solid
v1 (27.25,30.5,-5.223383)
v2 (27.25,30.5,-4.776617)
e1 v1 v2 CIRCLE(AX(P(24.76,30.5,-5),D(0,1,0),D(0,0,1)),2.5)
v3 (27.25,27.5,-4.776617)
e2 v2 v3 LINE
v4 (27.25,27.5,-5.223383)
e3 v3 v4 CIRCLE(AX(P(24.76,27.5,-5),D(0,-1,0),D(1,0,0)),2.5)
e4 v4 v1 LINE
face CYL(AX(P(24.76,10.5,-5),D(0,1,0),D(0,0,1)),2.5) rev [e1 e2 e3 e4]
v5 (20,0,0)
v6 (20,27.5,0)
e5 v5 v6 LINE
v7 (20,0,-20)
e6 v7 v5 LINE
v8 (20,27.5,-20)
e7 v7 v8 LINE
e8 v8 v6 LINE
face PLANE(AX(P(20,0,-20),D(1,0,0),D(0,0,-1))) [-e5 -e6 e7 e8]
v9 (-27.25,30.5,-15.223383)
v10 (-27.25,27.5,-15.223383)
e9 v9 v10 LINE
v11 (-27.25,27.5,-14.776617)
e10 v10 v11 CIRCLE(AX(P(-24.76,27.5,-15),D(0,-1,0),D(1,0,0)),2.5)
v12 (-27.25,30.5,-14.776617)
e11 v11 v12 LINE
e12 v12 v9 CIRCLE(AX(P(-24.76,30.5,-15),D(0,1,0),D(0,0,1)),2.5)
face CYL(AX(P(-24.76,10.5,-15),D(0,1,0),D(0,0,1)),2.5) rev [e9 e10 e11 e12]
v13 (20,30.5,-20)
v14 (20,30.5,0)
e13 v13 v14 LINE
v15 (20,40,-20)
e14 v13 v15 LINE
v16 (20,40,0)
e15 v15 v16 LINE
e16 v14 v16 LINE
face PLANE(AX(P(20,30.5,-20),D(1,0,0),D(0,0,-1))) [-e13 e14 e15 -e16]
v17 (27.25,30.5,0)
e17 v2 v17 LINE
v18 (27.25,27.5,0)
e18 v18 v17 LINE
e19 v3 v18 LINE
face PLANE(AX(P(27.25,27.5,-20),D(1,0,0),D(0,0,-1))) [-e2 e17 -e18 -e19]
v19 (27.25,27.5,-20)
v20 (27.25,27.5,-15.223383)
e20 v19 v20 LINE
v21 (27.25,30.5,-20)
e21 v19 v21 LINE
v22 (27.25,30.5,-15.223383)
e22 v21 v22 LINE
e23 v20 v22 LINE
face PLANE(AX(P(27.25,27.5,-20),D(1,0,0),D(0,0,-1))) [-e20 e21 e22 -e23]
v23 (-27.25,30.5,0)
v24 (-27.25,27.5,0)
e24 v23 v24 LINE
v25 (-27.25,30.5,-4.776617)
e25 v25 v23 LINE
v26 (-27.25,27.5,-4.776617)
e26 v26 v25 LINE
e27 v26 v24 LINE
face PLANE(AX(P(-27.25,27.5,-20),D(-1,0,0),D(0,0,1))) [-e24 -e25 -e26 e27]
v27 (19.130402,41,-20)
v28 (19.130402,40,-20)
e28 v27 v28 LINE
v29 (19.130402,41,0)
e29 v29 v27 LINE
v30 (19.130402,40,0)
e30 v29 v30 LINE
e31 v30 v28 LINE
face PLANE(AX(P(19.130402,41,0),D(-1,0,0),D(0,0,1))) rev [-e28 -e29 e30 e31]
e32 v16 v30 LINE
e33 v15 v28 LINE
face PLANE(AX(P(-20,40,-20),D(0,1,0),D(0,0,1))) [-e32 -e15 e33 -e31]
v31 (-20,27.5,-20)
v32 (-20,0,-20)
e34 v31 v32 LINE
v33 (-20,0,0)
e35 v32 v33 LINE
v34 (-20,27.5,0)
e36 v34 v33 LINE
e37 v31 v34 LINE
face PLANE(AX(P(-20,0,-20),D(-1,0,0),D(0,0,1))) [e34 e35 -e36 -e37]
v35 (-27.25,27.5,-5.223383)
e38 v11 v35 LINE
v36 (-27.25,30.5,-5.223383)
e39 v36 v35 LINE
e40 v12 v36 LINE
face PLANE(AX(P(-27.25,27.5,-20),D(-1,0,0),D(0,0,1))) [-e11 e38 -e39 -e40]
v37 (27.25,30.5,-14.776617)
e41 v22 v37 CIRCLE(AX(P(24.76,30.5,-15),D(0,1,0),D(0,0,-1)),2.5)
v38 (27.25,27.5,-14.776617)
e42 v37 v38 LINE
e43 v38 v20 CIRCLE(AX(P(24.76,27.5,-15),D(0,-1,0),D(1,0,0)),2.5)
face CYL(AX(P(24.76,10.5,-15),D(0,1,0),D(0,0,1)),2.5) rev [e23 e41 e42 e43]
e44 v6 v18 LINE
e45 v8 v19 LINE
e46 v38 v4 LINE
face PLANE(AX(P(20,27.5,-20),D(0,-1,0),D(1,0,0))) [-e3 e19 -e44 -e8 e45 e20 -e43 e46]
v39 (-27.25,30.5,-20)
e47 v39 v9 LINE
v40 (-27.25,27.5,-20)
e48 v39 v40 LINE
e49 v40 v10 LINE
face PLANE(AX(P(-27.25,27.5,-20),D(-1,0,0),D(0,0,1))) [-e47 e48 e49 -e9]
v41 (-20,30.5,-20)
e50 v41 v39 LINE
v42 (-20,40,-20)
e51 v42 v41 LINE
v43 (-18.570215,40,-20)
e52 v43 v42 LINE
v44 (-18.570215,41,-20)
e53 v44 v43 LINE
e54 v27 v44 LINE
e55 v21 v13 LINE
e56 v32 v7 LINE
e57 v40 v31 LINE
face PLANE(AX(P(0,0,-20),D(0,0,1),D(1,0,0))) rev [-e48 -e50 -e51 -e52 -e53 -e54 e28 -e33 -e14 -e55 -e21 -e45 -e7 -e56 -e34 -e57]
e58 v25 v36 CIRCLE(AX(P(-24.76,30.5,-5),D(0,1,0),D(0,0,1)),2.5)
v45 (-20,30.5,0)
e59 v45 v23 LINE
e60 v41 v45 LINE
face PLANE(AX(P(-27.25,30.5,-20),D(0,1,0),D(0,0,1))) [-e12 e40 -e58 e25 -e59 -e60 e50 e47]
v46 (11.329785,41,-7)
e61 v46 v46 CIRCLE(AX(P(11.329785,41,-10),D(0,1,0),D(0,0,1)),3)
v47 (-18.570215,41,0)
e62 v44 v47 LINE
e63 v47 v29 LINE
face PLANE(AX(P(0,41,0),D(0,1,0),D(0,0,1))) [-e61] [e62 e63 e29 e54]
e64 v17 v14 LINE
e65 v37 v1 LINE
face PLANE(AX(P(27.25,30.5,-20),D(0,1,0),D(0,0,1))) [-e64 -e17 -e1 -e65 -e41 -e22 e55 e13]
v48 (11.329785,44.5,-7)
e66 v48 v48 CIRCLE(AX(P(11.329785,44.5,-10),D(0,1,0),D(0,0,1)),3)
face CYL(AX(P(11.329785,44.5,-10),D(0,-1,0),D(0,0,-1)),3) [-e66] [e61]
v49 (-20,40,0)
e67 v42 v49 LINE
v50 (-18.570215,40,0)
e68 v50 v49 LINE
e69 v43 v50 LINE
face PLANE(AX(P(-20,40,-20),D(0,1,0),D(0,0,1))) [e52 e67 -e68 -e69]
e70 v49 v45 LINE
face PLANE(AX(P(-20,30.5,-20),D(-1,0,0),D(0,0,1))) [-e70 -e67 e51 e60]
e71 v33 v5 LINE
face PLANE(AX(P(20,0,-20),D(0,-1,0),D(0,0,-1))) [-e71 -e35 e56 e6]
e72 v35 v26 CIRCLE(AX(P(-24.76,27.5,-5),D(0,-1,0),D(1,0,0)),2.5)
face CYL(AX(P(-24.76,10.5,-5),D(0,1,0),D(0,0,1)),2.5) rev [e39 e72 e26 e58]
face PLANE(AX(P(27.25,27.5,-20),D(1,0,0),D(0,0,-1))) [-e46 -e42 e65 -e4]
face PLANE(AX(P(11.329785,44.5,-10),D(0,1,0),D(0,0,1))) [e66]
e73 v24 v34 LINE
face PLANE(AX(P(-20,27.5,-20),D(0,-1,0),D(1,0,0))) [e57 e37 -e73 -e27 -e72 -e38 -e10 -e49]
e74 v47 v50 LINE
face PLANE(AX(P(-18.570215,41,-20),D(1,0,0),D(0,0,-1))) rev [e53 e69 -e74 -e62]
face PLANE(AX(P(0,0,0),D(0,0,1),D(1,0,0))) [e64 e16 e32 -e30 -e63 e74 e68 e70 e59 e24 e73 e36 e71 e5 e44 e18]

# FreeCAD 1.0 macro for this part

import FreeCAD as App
import Part
import Sketcher

V = App.Vector
Q = App.Units.Quantity

doc = App.newDocument("Part")
params = doc.addObject("Spreadsheet::Sheet", "Params")
for row, (alias, value) in enumerate([
    ("sketch1_width", "40 mm"),
    ("sketch1_height", "3 mm"),
    ("sketch1_height2", "27.5 mm"),
    ("sketch1_height3", "9.5 mm"),
    ("sketch1_width2", "7.25 mm"),
    ("pad1_length", "20 mm"),
    ("sketch2_diameter", "5 mm"),
    ("pocket1_length", "20 mm"),
    ("sketch3_height", "20 mm"),
    ("pad2_length", "1 mm"),
    ("sketch4_diameter", "6 mm"),
    ("pad3_length", "3.5 mm"),
], start=1):
    params.set(f"A{row}", alias)
    params.set(f"B{row}", "=" + value)
    params.setAlias(f"B{row}", alias)

body = doc.addObject("PartDesign::Body", "Body")

# Sketch on XY plane
sketch1 = body.newObject("Sketcher::SketchObject", "Sketch")
sketch1.AttachmentSupport = (doc.getObject("XY_Plane"), [""])
sketch1.MapMode = "FlatFace"
sketch1.addGeometry(Part.LineSegment(V(-20, 0, 0), V(20, 0, 0)), False)
sketch1.addGeometry(Part.LineSegment(V(20, 0, 0), V(20, 27.5, 0)), False)
sketch1.addGeometry(Part.LineSegment(V(20, 27.5, 0), V(27.2, 27.5, 0)), False)
sketch1.addGeometry(Part.LineSegment(V(27.2, 27.5, 0), V(27.2, 30.5, 0)), False)
sketch1.addGeometry(Part.LineSegment(V(27.2, 30.5, 0), V(20, 30.5, 0)), False)
sketch1.addGeometry(Part.LineSegment(V(20, 30.5, 0), V(20, 40, 0)), False)
sketch1.addGeometry(Part.LineSegment(V(20, 40, 0), V(-20, 40, 0)), False)
sketch1.addGeometry(Part.LineSegment(V(-20, 40, 0), V(-20, 30.5, 0)), False)
sketch1.addGeometry(Part.LineSegment(V(-20, 30.5, 0), V(-27.2, 30.5, 0)), False)
sketch1.addGeometry(Part.LineSegment(V(-27.2, 30.5, 0), V(-27.2, 27.5, 0)), False)
sketch1.addGeometry(Part.LineSegment(V(-27.2, 27.5, 0), V(-20, 27.5, 0)), False)
sketch1.addGeometry(Part.LineSegment(V(-20, 27.5, 0), V(-20, 0, 0)), False)
sketch1.addConstraint(Sketcher.Constraint("Coincident", 0, 2, 1, 1))
sketch1.addConstraint(Sketcher.Constraint("Coincident", 1, 2, 2, 1))
sketch1.addConstraint(Sketcher.Constraint("Coincident", 2, 2, 3, 1))
sketch1.addConstraint(Sketcher.Constraint("Coincident", 3, 2, 4, 1))
sketch1.addConstraint(Sketcher.Constraint("Coincident", 4, 2, 5, 1))
sketch1.addConstraint(Sketcher.Constraint("Coincident", 5, 2, 6, 1))
sketch1.addConstraint(Sketcher.Constraint("Coincident", 6, 2, 7, 1))
sketch1.addConstraint(Sketcher.Constraint("Coincident", 7, 2, 8, 1))
sketch1.addConstraint(Sketcher.Constraint("Coincident", 8, 2, 9, 1))
sketch1.addConstraint(Sketcher.Constraint("Coincident", 9, 2, 10, 1))
sketch1.addConstraint(Sketcher.Constraint("Coincident", 10, 2, 11, 1))
sketch1.addConstraint(Sketcher.Constraint("Coincident", 11, 2, 0, 1))
sketch1.addConstraint(Sketcher.Constraint("Horizontal", 0))
sketch1.addConstraint(Sketcher.Constraint("Vertical", 1))
sketch1.addConstraint(Sketcher.Constraint("Horizontal", 2))
sketch1.addConstraint(Sketcher.Constraint("Vertical", 3))
sketch1.addConstraint(Sketcher.Constraint("Horizontal", 4))
sketch1.addConstraint(Sketcher.Constraint("Vertical", 5))
sketch1.addConstraint(Sketcher.Constraint("Horizontal", 6))
sketch1.addConstraint(Sketcher.Constraint("Vertical", 7))
sketch1.addConstraint(Sketcher.Constraint("Horizontal", 8))
sketch1.addConstraint(Sketcher.Constraint("Vertical", 9))
sketch1.addConstraint(Sketcher.Constraint("Horizontal", 10))
sketch1.addConstraint(Sketcher.Constraint("Vertical", 11))
sketch1.addConstraint(Sketcher.Constraint("Symmetric", 0, 2, 11, 2, -1, 1))
sketch1.addConstraint(Sketcher.Constraint("Symmetric", 4, 2, 7, 2, -2))
sketch1.addConstraint(Sketcher.Constraint("Symmetric", 2, 2, 9, 2, -2))
sketch1.addConstraint(Sketcher.Constraint("Vertical", 1, 2, 4, 2))
sketch1.addConstraint(Sketcher.Constraint("DistanceX", 0, 1, 0, 2, Q("40 mm")))
sketch1.addConstraint(Sketcher.Constraint("DistanceY", 3, 1, 3, 2, Q("3 mm")))
sketch1.addConstraint(Sketcher.Constraint("DistanceY", 1, 1, 1, 2, Q("27.5 mm")))
sketch1.addConstraint(Sketcher.Constraint("DistanceY", 5, 1, 5, 2, Q("9.5 mm")))
sketch1.addConstraint(Sketcher.Constraint("DistanceX", 2, 1, 2, 2, Q("7.25 mm")))
sketch1.setExpression("Constraints[28]", "Params.sketch1_width")
sketch1.setExpression("Constraints[29]", "Params.sketch1_height")
sketch1.setExpression("Constraints[30]", "Params.sketch1_height2")
sketch1.setExpression("Constraints[31]", "Params.sketch1_height3")
sketch1.setExpression("Constraints[32]", "Params.sketch1_width2")
pad1 = body.newObject("PartDesign::Pad", "Pad")
pad1.Profile = sketch1
pad1.setExpression("Length", "Params.pad1_length")
pad1.Reversed = True

# Sketch on XZ plane
sketch2 = body.newObject("Sketcher::SketchObject", "Sketch001")
sketch2.AttachmentSupport = (doc.getObject("XZ_Plane"), [""])
sketch2.MapMode = "FlatFace"
sketch2.AttachmentOffset = App.Placement(V(0, 0, -30.5), App.Rotation())
sketch2.addGeometry(Part.Circle(V(-24.8, -15, 0), V(0, 0, 1), 2.5), False)
sketch2.addGeometry(Part.Circle(V(-24.8, -5, 0), V(0, 0, 1), 2.5), False)
sketch2.addGeometry(Part.Circle(V(24.8, -5, 0), V(0, 0, 1), 2.5), False)
sketch2.addGeometry(Part.Circle(V(24.8, -15, 0), V(0, 0, 1), 2.5), False)
sketch2.addConstraint(Sketcher.Constraint("Equal", 0, 1))
sketch2.addConstraint(Sketcher.Constraint("Equal", 1, 2))
sketch2.addConstraint(Sketcher.Constraint("Equal", 2, 3))
sketch2.addConstraint(Sketcher.Constraint("Symmetric", 1, 3, 2, 3, -2))
sketch2.addConstraint(Sketcher.Constraint("Symmetric", 0, 3, 3, 3, -2))
sketch2.addConstraint(Sketcher.Constraint("Vertical", 0, 3, 1, 3))
sketch2.addConstraint(Sketcher.Constraint("Diameter", 0, Q("5 mm")))
sketch2.addConstraint(Sketcher.Constraint("DistanceY", 0, 3, -1, 1, Q("15 mm")))
sketch2.addConstraint(Sketcher.Constraint("DistanceY", 1, 3, -1, 1, Q("5 mm")))
sketch2.addConstraint(Sketcher.Constraint("DistanceX", 0, 3, -1, 1, Q("24.76 mm")))
sketch2.setExpression("Constraints[6]", "Params.sketch2_diameter")
pocket1 = body.newObject("PartDesign::Pocket", "Pocket")
pocket1.Profile = sketch2
pocket1.setExpression("Length", "Params.pocket1_length")
pocket1.Reversed = True

# Sketch on XZ plane
sketch3 = body.newObject("Sketcher::SketchObject", "Sketch002")
sketch3.AttachmentSupport = (doc.getObject("XZ_Plane"), [""])
sketch3.MapMode = "FlatFace"
sketch3.AttachmentOffset = App.Placement(V(0, 0, -40), App.Rotation())
sketch3.addGeometry(Part.LineSegment(V(-19, -20, 0), V(-19, 0, 0)), False)
sketch3.addGeometry(Part.LineSegment(V(-19, 0, 0), V(19, 0, 0)), False)
sketch3.addGeometry(Part.LineSegment(V(19, 0, 0), V(19, -20, 0)), False)
sketch3.addGeometry(Part.LineSegment(V(19, -20, 0), V(-19, -20, 0)), False)
sketch3.addConstraint(Sketcher.Constraint("Coincident", 0, 2, 1, 1))
sketch3.addConstraint(Sketcher.Constraint("Coincident", 1, 2, 2, 1))
sketch3.addConstraint(Sketcher.Constraint("Coincident", 2, 2, 3, 1))
sketch3.addConstraint(Sketcher.Constraint("Coincident", 3, 2, 0, 1))
sketch3.addConstraint(Sketcher.Constraint("Vertical", 0))
sketch3.addConstraint(Sketcher.Constraint("Horizontal", 1))
sketch3.addConstraint(Sketcher.Constraint("Vertical", 2))
sketch3.addConstraint(Sketcher.Constraint("Horizontal", 3))
sketch3.addConstraint(Sketcher.Constraint("PointOnObject", 0, 2, -1))
sketch3.addConstraint(Sketcher.Constraint("DistanceY", 0, 1, 0, 2, Q("20 mm")))
sketch3.addConstraint(Sketcher.Constraint("DistanceX", 1, 1, 1, 2, Q("37.700617 mm")))
sketch3.addConstraint(Sketcher.Constraint("DistanceX", 0, 2, -1, 1, Q("18.570215 mm")))
sketch3.setExpression("Constraints[9]", "Params.sketch3_height")
pad2 = body.newObject("PartDesign::Pad", "Pad001")
pad2.Profile = sketch3
pad2.setExpression("Length", "Params.pad2_length")
pad2.Reversed = True

# Sketch on XZ plane
sketch4 = body.newObject("Sketcher::SketchObject", "Sketch003")
sketch4.AttachmentSupport = (doc.getObject("XZ_Plane"), [""])
sketch4.MapMode = "FlatFace"
sketch4.AttachmentOffset = App.Placement(V(0, 0, -41), App.Rotation())
sketch4.addGeometry(Part.Circle(V(11.3, -10, 0), V(0, 0, 1), 3), False)
sketch4.addConstraint(Sketcher.Constraint("Diameter", 0, Q("6 mm")))
sketch4.addConstraint(Sketcher.Constraint("DistanceY", 0, 3, -1, 1, Q("10 mm")))
sketch4.addConstraint(Sketcher.Constraint("DistanceX", -1, 1, 0, 3, Q("11.329785 mm")))
sketch4.setExpression("Constraints[0]", "Params.sketch4_diameter")
pad3 = body.newObject("PartDesign::Pad", "Pad002")
pad3.Profile = sketch4
pad3.setExpression("Length", "Params.pad3_length")
pad3.Reversed = True

doc.recompute()
